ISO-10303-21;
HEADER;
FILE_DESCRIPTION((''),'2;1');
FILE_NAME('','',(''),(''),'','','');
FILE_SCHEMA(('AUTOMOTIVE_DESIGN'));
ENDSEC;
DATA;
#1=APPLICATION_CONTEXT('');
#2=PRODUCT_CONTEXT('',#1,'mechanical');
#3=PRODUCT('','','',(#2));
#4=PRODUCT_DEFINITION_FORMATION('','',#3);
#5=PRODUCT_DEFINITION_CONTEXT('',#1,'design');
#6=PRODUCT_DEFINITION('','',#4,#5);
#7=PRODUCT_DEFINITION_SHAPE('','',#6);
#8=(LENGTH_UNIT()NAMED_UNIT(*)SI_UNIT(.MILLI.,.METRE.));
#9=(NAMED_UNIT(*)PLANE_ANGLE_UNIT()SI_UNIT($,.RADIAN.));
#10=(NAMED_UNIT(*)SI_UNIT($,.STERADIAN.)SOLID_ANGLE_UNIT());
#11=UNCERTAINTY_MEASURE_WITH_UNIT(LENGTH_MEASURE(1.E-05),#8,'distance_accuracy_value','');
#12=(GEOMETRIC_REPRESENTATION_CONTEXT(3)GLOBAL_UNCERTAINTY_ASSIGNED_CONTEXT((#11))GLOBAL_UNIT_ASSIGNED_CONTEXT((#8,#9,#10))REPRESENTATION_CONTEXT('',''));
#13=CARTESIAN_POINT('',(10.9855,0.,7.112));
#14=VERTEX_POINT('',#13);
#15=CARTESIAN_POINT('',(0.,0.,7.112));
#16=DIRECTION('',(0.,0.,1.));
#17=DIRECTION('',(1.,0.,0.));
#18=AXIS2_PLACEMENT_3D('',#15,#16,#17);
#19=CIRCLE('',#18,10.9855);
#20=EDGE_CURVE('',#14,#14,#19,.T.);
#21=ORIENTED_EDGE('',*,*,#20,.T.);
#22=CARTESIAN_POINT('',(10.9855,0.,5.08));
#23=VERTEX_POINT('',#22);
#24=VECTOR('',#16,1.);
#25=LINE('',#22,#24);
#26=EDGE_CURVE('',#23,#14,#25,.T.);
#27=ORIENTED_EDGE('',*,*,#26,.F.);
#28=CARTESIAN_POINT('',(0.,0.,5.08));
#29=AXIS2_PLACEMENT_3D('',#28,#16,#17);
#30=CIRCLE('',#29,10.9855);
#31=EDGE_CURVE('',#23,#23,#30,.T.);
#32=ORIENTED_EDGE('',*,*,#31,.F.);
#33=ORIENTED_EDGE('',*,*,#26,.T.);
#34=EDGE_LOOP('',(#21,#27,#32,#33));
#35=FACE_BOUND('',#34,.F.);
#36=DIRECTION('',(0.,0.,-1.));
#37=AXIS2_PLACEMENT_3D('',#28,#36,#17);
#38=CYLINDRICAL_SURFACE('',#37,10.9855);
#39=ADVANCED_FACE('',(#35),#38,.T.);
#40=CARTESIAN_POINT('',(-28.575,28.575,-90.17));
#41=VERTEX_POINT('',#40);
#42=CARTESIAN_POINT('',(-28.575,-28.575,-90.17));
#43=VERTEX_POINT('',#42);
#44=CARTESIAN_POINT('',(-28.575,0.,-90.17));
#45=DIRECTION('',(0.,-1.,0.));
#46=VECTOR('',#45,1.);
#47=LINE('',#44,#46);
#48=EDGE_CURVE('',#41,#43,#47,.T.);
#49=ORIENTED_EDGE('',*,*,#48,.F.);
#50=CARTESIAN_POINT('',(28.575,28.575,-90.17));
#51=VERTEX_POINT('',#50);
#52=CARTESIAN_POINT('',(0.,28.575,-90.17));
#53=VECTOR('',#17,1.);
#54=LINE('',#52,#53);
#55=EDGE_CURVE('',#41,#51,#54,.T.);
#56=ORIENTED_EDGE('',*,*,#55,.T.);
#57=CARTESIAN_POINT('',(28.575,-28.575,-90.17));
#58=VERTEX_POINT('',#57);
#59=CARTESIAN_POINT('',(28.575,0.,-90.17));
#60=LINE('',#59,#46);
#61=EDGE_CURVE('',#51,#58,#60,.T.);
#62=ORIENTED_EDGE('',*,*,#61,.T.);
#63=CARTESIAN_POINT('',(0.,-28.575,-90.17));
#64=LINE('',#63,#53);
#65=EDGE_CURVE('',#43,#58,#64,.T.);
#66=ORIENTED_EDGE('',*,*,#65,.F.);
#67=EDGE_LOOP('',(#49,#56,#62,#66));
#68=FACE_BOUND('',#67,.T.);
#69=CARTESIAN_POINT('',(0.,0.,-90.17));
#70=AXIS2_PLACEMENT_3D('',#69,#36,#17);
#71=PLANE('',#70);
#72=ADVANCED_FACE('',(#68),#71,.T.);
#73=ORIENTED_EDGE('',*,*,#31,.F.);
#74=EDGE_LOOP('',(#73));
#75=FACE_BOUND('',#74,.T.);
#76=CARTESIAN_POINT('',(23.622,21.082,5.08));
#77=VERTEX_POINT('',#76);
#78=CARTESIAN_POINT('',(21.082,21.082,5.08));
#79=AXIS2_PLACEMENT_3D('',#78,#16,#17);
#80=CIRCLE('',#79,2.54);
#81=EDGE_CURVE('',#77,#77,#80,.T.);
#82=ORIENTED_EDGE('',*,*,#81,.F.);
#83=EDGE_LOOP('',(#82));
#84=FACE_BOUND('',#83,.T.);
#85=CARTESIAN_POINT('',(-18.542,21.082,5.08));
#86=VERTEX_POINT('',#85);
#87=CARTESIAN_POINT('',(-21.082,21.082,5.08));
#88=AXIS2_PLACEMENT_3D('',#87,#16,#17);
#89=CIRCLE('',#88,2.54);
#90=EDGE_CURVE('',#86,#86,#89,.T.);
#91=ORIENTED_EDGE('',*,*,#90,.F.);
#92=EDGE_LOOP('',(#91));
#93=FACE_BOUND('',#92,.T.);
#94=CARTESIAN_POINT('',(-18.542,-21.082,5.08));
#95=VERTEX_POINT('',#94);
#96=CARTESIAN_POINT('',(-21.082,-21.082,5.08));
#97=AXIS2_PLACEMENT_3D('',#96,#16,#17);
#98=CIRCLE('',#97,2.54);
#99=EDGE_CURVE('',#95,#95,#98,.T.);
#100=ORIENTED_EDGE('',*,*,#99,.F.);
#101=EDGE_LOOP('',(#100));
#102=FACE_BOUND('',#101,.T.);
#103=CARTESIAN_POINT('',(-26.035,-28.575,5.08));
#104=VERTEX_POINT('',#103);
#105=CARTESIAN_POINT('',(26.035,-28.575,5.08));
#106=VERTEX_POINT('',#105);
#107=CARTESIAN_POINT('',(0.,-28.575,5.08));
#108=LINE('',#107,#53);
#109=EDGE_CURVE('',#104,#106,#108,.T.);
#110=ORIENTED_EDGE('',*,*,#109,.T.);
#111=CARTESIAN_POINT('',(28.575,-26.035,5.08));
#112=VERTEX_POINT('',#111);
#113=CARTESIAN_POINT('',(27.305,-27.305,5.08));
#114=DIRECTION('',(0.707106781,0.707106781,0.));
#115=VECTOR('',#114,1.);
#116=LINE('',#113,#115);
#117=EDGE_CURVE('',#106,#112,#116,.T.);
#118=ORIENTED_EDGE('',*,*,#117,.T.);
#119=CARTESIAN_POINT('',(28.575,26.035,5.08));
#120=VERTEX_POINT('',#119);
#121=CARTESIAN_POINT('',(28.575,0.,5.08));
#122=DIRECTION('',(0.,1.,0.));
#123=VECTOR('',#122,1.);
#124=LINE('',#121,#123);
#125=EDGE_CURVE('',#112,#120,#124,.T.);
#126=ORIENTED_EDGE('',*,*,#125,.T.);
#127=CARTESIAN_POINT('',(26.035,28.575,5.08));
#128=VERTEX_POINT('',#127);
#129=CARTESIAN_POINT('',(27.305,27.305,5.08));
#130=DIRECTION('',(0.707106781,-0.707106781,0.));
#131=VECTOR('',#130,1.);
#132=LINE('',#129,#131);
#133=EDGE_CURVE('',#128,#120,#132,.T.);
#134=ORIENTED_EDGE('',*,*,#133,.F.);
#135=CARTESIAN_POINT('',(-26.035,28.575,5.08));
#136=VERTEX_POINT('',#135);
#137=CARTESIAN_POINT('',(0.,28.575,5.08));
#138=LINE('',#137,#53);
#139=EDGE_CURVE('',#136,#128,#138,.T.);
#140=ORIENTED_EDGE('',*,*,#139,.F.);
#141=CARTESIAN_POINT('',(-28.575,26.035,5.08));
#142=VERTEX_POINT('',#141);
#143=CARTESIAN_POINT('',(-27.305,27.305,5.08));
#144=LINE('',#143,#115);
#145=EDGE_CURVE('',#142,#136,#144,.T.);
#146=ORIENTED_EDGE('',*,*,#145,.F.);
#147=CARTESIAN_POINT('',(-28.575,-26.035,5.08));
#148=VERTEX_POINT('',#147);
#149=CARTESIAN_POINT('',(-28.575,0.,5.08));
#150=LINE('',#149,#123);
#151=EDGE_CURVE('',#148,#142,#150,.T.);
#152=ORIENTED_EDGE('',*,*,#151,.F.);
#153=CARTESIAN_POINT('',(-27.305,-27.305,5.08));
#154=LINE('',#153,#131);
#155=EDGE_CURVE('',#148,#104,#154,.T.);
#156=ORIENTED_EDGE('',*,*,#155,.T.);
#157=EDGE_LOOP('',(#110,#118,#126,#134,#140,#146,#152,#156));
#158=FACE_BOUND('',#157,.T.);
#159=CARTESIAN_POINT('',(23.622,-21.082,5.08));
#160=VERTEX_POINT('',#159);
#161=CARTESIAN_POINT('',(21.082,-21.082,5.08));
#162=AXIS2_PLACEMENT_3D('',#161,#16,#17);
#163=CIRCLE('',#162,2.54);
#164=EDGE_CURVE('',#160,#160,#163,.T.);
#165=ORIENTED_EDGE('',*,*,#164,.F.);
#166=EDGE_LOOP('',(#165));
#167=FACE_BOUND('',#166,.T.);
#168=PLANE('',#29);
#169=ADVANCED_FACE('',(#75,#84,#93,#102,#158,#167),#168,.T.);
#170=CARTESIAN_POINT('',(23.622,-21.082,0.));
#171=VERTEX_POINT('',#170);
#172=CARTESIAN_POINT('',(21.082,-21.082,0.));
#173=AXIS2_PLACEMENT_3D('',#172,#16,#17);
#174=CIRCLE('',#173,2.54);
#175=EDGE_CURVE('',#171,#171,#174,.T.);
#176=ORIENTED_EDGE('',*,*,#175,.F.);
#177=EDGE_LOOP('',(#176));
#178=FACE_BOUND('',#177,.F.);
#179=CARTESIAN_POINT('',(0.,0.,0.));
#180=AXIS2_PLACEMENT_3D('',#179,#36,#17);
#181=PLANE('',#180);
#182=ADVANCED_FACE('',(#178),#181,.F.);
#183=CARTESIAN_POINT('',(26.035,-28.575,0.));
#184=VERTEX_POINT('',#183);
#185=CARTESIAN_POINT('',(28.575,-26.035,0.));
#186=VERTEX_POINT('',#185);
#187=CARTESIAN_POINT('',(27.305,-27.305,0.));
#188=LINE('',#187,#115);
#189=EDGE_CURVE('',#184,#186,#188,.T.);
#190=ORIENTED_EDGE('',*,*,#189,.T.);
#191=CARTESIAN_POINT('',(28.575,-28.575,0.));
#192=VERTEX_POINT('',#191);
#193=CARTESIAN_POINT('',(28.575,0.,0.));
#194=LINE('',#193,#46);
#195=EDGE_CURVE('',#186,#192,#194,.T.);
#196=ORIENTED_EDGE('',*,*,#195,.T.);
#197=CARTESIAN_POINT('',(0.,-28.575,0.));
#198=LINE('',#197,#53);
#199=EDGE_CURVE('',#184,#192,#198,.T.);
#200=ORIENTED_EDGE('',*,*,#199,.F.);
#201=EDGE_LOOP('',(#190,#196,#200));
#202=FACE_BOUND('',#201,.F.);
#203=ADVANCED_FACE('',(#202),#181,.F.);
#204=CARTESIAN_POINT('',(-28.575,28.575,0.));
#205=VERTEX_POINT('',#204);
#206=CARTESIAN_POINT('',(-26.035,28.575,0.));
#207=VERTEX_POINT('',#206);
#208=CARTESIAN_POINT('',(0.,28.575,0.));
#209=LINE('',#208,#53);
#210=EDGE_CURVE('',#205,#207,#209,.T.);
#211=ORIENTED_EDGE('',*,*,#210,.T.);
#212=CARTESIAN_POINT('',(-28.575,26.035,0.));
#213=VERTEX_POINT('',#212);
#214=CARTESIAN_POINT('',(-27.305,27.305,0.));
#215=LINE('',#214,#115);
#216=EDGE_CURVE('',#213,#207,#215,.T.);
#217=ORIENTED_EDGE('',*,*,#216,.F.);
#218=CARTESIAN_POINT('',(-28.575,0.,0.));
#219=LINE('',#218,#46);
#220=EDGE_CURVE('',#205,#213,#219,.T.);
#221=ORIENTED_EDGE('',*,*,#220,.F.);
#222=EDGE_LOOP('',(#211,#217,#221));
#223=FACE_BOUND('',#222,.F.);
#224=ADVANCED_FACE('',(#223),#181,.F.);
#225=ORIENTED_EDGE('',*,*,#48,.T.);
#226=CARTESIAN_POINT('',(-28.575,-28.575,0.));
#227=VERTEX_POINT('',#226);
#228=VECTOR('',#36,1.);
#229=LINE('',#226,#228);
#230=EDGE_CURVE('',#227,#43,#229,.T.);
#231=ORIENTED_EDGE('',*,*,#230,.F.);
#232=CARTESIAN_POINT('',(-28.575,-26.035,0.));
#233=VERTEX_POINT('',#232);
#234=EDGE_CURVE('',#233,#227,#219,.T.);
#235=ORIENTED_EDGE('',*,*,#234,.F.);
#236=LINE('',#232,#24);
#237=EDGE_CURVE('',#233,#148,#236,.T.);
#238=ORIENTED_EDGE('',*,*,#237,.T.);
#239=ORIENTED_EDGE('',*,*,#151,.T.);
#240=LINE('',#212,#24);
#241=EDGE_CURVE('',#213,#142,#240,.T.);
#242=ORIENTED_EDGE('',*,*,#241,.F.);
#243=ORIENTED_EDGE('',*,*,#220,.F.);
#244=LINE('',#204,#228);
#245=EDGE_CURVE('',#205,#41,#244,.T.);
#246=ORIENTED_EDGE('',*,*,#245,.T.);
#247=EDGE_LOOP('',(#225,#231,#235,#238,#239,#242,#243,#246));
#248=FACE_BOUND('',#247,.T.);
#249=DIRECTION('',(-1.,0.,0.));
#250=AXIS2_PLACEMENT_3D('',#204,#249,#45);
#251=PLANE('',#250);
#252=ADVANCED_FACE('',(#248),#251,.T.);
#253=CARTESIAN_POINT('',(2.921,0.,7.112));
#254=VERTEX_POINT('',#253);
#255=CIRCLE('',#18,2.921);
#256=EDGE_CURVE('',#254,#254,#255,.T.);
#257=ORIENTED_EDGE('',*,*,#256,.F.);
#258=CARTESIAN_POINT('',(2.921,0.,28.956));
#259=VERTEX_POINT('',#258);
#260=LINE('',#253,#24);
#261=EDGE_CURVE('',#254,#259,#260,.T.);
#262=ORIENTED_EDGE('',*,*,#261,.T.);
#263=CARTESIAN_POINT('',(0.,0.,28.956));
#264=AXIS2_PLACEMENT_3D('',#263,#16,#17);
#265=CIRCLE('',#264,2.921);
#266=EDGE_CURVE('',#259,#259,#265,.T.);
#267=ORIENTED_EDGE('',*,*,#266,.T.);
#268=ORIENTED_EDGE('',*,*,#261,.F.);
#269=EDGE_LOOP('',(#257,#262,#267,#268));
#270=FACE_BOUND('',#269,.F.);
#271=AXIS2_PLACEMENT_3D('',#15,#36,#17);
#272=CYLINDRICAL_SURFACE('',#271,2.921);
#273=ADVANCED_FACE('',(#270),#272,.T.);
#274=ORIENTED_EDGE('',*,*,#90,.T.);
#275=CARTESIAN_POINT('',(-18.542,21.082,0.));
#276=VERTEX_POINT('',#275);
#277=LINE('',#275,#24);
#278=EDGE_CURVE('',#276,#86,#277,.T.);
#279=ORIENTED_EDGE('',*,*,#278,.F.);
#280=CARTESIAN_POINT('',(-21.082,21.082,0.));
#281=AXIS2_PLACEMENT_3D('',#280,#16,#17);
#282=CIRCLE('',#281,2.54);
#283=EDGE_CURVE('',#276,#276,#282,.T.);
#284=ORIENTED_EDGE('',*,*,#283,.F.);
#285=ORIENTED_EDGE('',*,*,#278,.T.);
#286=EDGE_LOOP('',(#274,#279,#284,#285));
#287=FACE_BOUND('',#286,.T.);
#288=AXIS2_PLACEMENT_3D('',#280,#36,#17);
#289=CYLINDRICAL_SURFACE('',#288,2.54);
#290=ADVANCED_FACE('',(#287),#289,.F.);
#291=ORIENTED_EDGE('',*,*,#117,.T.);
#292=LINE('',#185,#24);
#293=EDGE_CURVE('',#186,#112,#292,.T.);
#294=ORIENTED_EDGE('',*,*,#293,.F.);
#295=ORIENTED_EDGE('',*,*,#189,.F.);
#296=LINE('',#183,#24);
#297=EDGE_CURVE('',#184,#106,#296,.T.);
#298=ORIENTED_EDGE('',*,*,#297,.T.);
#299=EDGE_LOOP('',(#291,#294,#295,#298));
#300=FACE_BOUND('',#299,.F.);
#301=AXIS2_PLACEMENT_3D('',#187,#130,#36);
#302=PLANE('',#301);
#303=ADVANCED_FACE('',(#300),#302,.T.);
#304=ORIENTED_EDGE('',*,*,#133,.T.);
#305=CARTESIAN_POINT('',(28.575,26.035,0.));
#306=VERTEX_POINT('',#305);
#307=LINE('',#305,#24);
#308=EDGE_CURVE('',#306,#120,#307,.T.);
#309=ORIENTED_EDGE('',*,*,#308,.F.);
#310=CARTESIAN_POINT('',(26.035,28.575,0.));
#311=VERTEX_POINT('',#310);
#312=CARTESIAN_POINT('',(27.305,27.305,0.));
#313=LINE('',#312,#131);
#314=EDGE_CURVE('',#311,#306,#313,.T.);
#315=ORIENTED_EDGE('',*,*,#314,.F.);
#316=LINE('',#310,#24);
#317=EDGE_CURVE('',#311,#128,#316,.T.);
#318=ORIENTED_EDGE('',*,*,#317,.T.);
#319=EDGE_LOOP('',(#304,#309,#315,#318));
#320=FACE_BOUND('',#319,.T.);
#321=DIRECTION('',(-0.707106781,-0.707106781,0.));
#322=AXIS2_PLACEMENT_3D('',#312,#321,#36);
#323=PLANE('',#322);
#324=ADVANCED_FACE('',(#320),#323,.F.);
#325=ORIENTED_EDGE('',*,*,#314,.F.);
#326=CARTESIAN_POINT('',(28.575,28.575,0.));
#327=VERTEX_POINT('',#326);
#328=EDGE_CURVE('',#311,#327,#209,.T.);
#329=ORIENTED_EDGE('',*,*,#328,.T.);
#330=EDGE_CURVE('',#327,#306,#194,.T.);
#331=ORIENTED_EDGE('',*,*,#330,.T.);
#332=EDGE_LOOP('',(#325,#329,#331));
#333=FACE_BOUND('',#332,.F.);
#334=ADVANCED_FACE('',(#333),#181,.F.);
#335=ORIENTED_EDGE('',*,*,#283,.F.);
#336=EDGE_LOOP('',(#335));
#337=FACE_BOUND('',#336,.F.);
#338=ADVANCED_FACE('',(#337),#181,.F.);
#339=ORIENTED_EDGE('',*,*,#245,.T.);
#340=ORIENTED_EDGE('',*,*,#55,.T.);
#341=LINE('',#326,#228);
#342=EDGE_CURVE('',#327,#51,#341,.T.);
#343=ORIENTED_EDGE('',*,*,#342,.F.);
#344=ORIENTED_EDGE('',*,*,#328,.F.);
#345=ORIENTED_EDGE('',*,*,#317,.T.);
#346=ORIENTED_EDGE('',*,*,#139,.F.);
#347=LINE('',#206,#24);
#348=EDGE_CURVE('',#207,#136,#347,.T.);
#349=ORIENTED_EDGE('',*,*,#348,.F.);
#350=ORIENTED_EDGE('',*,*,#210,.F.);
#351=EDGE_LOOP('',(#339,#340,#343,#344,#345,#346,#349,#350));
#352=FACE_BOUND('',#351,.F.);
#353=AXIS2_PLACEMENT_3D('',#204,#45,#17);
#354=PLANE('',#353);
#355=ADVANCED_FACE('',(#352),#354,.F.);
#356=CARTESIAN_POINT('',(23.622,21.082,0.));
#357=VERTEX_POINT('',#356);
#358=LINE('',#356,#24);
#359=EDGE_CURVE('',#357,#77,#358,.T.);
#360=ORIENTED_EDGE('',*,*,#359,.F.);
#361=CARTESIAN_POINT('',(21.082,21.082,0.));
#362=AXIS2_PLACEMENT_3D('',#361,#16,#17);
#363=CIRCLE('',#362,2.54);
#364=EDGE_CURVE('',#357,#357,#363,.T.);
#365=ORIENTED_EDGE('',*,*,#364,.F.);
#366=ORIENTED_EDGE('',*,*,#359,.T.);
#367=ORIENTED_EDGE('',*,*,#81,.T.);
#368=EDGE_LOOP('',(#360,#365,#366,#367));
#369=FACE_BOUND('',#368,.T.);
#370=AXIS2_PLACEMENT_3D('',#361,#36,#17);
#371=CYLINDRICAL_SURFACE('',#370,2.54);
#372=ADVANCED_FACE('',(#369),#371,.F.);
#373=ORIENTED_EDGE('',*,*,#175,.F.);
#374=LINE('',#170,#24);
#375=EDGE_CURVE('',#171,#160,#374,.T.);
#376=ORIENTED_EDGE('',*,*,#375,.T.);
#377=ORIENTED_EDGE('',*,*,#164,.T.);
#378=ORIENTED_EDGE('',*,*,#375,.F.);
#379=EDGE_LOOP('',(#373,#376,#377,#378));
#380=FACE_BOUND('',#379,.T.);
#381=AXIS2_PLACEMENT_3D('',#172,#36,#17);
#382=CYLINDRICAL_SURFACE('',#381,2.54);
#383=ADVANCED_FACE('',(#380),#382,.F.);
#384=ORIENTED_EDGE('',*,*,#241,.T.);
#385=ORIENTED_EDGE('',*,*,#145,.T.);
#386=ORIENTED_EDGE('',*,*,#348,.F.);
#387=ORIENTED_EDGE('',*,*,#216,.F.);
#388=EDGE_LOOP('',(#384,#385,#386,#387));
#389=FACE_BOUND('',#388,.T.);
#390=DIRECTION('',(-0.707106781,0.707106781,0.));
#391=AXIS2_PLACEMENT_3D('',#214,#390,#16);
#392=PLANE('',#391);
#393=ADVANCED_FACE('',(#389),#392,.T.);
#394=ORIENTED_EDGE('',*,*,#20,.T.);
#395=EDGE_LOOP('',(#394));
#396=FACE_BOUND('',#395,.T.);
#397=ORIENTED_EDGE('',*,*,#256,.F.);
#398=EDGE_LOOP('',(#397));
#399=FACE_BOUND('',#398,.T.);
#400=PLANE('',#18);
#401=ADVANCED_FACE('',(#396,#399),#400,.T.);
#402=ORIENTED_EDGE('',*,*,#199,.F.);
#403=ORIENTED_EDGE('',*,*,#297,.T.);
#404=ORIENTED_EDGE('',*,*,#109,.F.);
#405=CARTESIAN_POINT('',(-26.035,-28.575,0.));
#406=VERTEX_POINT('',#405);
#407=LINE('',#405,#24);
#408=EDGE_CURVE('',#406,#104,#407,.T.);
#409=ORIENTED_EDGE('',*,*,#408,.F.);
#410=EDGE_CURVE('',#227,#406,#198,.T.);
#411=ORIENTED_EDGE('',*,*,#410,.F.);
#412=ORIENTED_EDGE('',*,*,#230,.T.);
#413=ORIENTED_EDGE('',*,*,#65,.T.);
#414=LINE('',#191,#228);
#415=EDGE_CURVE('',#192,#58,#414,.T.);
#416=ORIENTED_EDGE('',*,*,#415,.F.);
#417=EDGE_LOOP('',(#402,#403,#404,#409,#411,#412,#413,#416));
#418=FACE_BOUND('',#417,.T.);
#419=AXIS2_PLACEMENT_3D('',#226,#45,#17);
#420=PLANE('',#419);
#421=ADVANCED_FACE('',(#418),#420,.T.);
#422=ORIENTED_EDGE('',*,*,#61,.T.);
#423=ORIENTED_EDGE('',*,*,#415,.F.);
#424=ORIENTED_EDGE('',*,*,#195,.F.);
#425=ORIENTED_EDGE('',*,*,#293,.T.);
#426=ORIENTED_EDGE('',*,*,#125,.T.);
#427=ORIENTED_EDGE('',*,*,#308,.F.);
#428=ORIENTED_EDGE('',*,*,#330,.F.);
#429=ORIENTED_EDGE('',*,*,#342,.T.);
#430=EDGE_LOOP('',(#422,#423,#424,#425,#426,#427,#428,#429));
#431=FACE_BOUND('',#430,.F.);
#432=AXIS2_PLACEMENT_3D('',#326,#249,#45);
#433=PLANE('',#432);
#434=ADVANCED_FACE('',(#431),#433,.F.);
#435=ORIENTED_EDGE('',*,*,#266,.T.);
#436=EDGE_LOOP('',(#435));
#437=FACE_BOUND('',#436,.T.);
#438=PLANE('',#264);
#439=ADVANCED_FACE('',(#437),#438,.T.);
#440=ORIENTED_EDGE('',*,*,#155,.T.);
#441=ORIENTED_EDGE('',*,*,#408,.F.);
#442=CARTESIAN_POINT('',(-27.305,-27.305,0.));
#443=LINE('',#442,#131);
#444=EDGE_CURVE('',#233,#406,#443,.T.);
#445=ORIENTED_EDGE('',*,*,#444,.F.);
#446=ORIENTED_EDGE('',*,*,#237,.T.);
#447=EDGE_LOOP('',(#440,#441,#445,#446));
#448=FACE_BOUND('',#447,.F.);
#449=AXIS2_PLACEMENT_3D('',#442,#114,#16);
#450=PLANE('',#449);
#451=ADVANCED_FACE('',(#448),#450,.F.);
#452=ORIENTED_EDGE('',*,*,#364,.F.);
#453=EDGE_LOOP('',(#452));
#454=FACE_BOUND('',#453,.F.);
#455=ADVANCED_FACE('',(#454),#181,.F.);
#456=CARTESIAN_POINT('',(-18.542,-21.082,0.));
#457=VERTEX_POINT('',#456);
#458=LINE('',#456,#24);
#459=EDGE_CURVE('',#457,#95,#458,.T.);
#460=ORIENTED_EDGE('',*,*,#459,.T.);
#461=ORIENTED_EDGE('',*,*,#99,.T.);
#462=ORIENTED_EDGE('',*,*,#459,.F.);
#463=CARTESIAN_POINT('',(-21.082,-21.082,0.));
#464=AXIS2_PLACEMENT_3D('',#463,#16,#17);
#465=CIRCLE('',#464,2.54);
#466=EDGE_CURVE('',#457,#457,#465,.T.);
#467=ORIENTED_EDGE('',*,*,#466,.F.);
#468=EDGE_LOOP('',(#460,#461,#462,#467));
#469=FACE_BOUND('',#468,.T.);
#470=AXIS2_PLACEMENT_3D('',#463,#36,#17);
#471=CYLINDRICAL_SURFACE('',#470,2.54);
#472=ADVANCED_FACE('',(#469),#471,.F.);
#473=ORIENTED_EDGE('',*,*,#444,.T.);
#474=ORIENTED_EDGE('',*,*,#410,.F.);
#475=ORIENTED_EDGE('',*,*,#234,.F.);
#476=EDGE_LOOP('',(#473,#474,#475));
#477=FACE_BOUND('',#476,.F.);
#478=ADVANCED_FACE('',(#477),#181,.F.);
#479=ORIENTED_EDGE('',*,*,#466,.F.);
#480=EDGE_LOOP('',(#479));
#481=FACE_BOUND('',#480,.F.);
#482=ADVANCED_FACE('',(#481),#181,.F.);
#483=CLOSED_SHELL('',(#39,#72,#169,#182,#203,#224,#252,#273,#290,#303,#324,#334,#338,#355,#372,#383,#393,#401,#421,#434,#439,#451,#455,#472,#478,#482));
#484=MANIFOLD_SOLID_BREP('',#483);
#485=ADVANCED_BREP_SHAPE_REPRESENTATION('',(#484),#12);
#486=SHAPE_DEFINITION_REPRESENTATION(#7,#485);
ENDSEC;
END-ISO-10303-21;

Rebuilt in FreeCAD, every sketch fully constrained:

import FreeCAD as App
import Part
import Sketcher
Q = App.Units.Quantity


def edges_at(feature, points):
    """Names of the edges that pass closest to the given points."""
    edges = feature.Shape.Edges
    near = lambda p: min(range(len(edges)), key=lambda i: edges[i].distToShape(Part.Vertex(*p))[0])
    return sorted({f"Edge{near(p) + 1}" for p in points})


def add_polygon(sketch, points):
    """Adds a closed chain of lines whose ends are joined by coincident constraints."""
    first, n = sketch.GeometryCount, len(points)
    for a, b in zip(points, points[1:] + points[:1]):
        sketch.addGeometry(Part.LineSegment(App.Vector(*a, 0), App.Vector(*b, 0)), False)
    for i in range(n):
        sketch.addConstraint(Sketcher.Constraint("Coincident", first + i, 2, first + (i + 1) % n, 1))

doc = App.newDocument("Part")
body = doc.addObject("PartDesign::Body", "Body")

sketch1 = body.newObject("Sketcher::SketchObject", "Sketch")
sketch1.AttachmentSupport = (doc.getObject("XY_Plane"), [""])
sketch1.MapMode = "FlatFace"
add_polygon(sketch1, [(-28.6, 28.6), (-28.6, -28.6), (28.6, -28.6), (28.6, 28.6)])
sketch1.addGeometry(Part.Circle(App.Vector(-21.1, -21.1, 0), App.Vector(0, 0, 1), 2.5), False)
sketch1.addGeometry(Part.Circle(App.Vector(21.1, -21.1, 0), App.Vector(0, 0, 1), 2.5), False)
sketch1.addGeometry(Part.Circle(App.Vector(-21.1, 21.1, 0), App.Vector(0, 0, 1), 2.5), False)
sketch1.addGeometry(Part.Circle(App.Vector(21.1, 21.1, 0), App.Vector(0, 0, 1), 2.5), False)
sketch1.addConstraint([
    Sketcher.Constraint("Vertical", 0),
    Sketcher.Constraint("Horizontal", 1),
    Sketcher.Constraint("Vertical", 2),
    Sketcher.Constraint("Horizontal", 3),
    Sketcher.Constraint("Equal", 4, 5),
    Sketcher.Constraint("Equal", 5, 6),
    Sketcher.Constraint("Equal", 6, 7),
    Sketcher.Constraint("Symmetric", 5, 3, 6, 3, -1, 1),
    Sketcher.Constraint("Symmetric", 4, 3, 7, 3, -1, 1),
    Sketcher.Constraint("Symmetric", 0, 2, 2, 2, -1, 1),
    Sketcher.Constraint("Symmetric", 4, 3, 5, 3, -2),
    Sketcher.Constraint("Equal", 3, 0),
    Sketcher.Constraint("Diameter", 4, Q("0.2 in")),
    Sketcher.Constraint("DistanceX", 1, 1, 1, 2, Q("2.25 in")),
    Sketcher.Constraint("DistanceX", 4, 3, -1, 1, Q("0.83 in")),
    Sketcher.Constraint("DistanceY", 4, 3, -1, 1, Q("0.83 in")),
])
pad1 = body.newObject("PartDesign::Pad", "Pad")
pad1.Profile = sketch1
pad1.Length = Q("0.2 in")
doc.recompute()

chamfer = body.newObject("PartDesign::Chamfer", "Chamfer")
chamfer.Base = (pad1, edges_at(pad1, [
    (-28.575, 28.575, 2.54),
    (28.575, 28.575, 2.54),
    (28.575, -28.575, 2.54),
    (-28.575, -28.575, 2.54),
]))
chamfer.Size = Q("0.1 in")

sketch2 = body.newObject("Sketcher::SketchObject", "Sketch001")
sketch2.AttachmentSupport = (doc.getObject("XY_Plane"), [""])
sketch2.MapMode = "FlatFace"
add_polygon(sketch2, [(-29, -29), (-29, 29), (29, 29), (29, -29)])
sketch2.addConstraint([
    Sketcher.Constraint("Vertical", 0),
    Sketcher.Constraint("Horizontal", 1),
    Sketcher.Constraint("Vertical", 2),
    Sketcher.Constraint("Horizontal", 3),
    Sketcher.Constraint("Symmetric", 0, 2, 2, 2, -1, 1),
    Sketcher.Constraint("Equal", 3, 0),
    Sketcher.Constraint("DistanceX", 1, 1, 1, 2, Q("2.25 in")),
])
pad2 = body.newObject("PartDesign::Pad", "Pad001")
pad2.Profile = sketch2
pad2.Length = Q("3.55 in")
pad2.Reversed = True

sketch3 = body.newObject("Sketcher::SketchObject", "Sketch002")
sketch3.AttachmentSupport = (doc.getObject("XY_Plane"), [""])
sketch3.MapMode = "FlatFace"
sketch3.AttachmentOffset = App.Placement(App.Vector(0, 0, 0.2 * 25.4), App.Rotation())
sketch3.addGeometry(Part.Circle(App.Vector(0, 0, 0), App.Vector(0, 0, 1), 11), False)
sketch3.addConstraint([
    Sketcher.Constraint("Coincident", 0, 3, -1, 1),
    Sketcher.Constraint("Diameter", 0, Q("0.865 in")),
])
pad3 = body.newObject("PartDesign::Pad", "Pad002")
pad3.Profile = sketch3
pad3.Length = Q("0.08 in")

sketch4 = body.newObject("Sketcher::SketchObject", "Sketch003")
sketch4.AttachmentSupport = (doc.getObject("XY_Plane"), [""])
sketch4.MapMode = "FlatFace"
sketch4.AttachmentOffset = App.Placement(App.Vector(0, 0, 0.28 * 25.4), App.Rotation())
sketch4.addGeometry(Part.Circle(App.Vector(0, 0, 0), App.Vector(0, 0, 1), 2.9), False)
sketch4.addConstraint([
    Sketcher.Constraint("Coincident", 0, 3, -1, 1),
    Sketcher.Constraint("Diameter", 0, Q("0.23 in")),
])
pad4 = body.newObject("PartDesign::Pad", "Pad003")
pad4.Profile = sketch4
pad4.Length = Q("0.86 in")

doc.recompute()
